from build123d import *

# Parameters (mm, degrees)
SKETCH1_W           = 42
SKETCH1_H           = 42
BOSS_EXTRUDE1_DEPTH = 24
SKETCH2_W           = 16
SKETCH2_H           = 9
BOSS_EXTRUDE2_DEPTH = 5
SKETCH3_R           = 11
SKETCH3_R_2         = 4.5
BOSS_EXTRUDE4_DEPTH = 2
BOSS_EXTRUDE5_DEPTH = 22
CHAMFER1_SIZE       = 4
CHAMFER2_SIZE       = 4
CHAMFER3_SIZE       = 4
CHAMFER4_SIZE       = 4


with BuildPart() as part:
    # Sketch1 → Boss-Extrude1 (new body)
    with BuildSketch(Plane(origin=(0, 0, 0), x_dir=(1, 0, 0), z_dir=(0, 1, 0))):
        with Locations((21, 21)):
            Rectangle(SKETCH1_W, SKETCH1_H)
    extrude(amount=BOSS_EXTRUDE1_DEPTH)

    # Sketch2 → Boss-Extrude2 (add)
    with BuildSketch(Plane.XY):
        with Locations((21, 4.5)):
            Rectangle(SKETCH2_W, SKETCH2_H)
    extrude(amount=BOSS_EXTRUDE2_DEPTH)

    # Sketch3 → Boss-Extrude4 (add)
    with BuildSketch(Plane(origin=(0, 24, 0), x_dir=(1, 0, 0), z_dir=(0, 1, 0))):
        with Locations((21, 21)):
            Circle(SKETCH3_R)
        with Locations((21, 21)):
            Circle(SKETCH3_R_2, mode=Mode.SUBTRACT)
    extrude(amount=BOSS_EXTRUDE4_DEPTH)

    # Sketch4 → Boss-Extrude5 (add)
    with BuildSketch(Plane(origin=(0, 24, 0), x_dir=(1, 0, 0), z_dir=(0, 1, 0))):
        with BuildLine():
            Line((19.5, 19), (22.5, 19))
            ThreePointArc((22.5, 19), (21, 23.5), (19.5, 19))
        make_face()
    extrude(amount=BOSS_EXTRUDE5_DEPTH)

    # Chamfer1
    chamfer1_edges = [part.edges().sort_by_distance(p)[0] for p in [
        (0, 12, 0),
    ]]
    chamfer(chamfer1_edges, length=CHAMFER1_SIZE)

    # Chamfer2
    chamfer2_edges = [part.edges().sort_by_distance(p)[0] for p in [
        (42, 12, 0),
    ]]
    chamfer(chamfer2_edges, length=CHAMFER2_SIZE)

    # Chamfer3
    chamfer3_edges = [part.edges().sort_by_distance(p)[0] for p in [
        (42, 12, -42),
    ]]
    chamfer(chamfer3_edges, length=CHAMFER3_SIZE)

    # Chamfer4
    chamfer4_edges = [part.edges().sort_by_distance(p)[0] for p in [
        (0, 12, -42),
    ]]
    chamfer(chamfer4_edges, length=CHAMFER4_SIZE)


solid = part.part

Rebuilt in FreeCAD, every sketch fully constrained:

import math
import FreeCAD as App
import Part
import Sketcher
from FreeCAD import Vector
Q = App.Units.Quantity


def edges_at(feature, points):
    """Names of the edges that pass closest to the given points."""
    edges = feature.Shape.Edges
    near = lambda p: min(range(len(edges)), key=lambda i: edges[i].distToShape(Part.Vertex(*p))[0])
    return sorted({f"Edge{near(p) + 1}" for p in points})

doc = App.newDocument("Part")
params = doc.addObject("Spreadsheet::Sheet", "Params")
for row, (alias, value) in enumerate([
    ("sketch1_width", "42 mm"),
    ("pad1_length", "24 mm"),
    ("sketch2_width", "16 mm"),
    ("sketch2_height", "9 mm"),
    ("pad2_length", "5 mm"),
    ("sketch3_diameter", "22 mm"),
    ("sketch3_diameter2", "9 mm"),
    ("pad3_length", "2 mm"),
    ("sketch4_radius", "2.5 mm"),
    ("sketch4_width", "3 mm"),
    ("pad4_length", "22 mm"),
    ("chamfer_size", "4 mm"),
    ("chamfer2_size", "4 mm"),
    ("chamfer3_size", "4 mm"),
    ("chamfer4_size", "4 mm"),
], start=1):
    params.set(f"A{row}", alias)
    params.set(f"B{row}", "=" + value)
    params.setAlias(f"B{row}", alias)

body = doc.addObject("PartDesign::Body", "Body")

# Sketch on XZ plane
sketch1 = body.newObject("Sketcher::SketchObject", "Sketch")
sketch1.AttachmentSupport = (doc.getObject("XZ_Plane"), [""])
sketch1.MapMode = "FlatFace"
sketch1.addGeometry([
    Part.LineSegment(Vector(0, -42, 0), Vector(0, 0, 0)),
    Part.LineSegment(Vector(0, 0, 0), Vector(42, 0, 0)),
    Part.LineSegment(Vector(42, 0, 0), Vector(42, -42, 0)),
    Part.LineSegment(Vector(42, -42, 0), Vector(0, -42, 0)),
], False)
sketch1.addConstraint([
    Sketcher.Constraint("Coincident", 0, 2, 1, 1),
    Sketcher.Constraint("Coincident", 1, 2, 2, 1),
    Sketcher.Constraint("Coincident", 2, 2, 3, 1),
    Sketcher.Constraint("Coincident", 3, 2, 0, 1),
    Sketcher.Constraint("Vertical", 0),
    Sketcher.Constraint("Horizontal", 1),
    Sketcher.Constraint("Vertical", 2),
    Sketcher.Constraint("Horizontal", 3),
    Sketcher.Constraint("Coincident", 0, 2, -1, 1),
    Sketcher.Constraint("Equal", 3, 0),
    Sketcher.Constraint("DistanceX", 1, 1, 1, 2, Q("42 mm")),
])
sketch1.setExpression("Constraints[10]", "Params.sketch1_width")
pad1 = body.newObject("PartDesign::Pad", "Pad")
pad1.Profile = sketch1
pad1.setExpression("Length", "Params.pad1_length")
pad1.Reversed = True

# Sketch on XY plane
sketch2 = body.newObject("Sketcher::SketchObject", "Sketch001")
sketch2.AttachmentSupport = (doc.getObject("XY_Plane"), [""])
sketch2.MapMode = "FlatFace"
sketch2.addGeometry([
    Part.LineSegment(Vector(13, 9, 0), Vector(13, 0, 0)),
    Part.LineSegment(Vector(13, 0, 0), Vector(29, 0, 0)),
    Part.LineSegment(Vector(29, 0, 0), Vector(29, 9, 0)),
    Part.LineSegment(Vector(29, 9, 0), Vector(13, 9, 0)),
], False)
sketch2.addConstraint([
    Sketcher.Constraint("Coincident", 0, 2, 1, 1),
    Sketcher.Constraint("Coincident", 1, 2, 2, 1),
    Sketcher.Constraint("Coincident", 2, 2, 3, 1),
    Sketcher.Constraint("Coincident", 3, 2, 0, 1),
    Sketcher.Constraint("Vertical", 0),
    Sketcher.Constraint("Horizontal", 1),
    Sketcher.Constraint("Vertical", 2),
    Sketcher.Constraint("Horizontal", 3),
    Sketcher.Constraint("PointOnObject", 0, 2, -1),
    Sketcher.Constraint("DistanceX", 1, 1, 1, 2, Q("16 mm")),
    Sketcher.Constraint("DistanceY", 0, 2, 0, 1, Q("9 mm")),
    Sketcher.Constraint("DistanceX", -1, 1, 0, 2, Q("13 mm")),
])
sketch2.setExpression("Constraints[9]", "Params.sketch2_width")
sketch2.setExpression("Constraints[10]", "Params.sketch2_height")
pad2 = body.newObject("PartDesign::Pad", "Pad001")
pad2.Profile = sketch2
pad2.setExpression("Length", "Params.pad2_length")

# Sketch on XZ plane
sketch3 = body.newObject("Sketcher::SketchObject", "Sketch002")
sketch3.AttachmentSupport = (doc.getObject("XZ_Plane"), [""])
sketch3.MapMode = "FlatFace"
sketch3.AttachmentOffset = App.Placement(Vector(0, 0, -24), App.Rotation())
sketch3.addGeometry([
    Part.Circle(Vector(21, -21, 0), Vector(0, 0, 1), 11),
    Part.Circle(Vector(21, -21, 0), Vector(0, 0, 1), 4.5),
], False)
sketch3.addConstraint([
    Sketcher.Constraint("Coincident", 1, 3, 0, 3),
    Sketcher.Constraint("Diameter", 0, Q("22 mm")),
    Sketcher.Constraint("Diameter", 1, Q("9 mm")),
    Sketcher.Constraint("DistanceX", -1, 1, 0, 3, Q("21 mm")),
    Sketcher.Constraint("DistanceY", 0, 3, -1, 1, Q("21 mm")),
])
sketch3.setExpression("Constraints[1]", "Params.sketch3_diameter")
sketch3.setExpression("Constraints[2]", "Params.sketch3_diameter2")
pad3 = body.newObject("PartDesign::Pad", "Pad002")
pad3.Profile = sketch3
pad3.setExpression("Length", "Params.pad3_length")
pad3.Reversed = True

# Sketch on XZ plane
sketch4 = body.newObject("Sketcher::SketchObject", "Sketch003")
sketch4.AttachmentSupport = (doc.getObject("XZ_Plane"), [""])
sketch4.MapMode = "FlatFace"
sketch4.AttachmentOffset = App.Placement(Vector(0, 0, -24), App.Rotation())
sketch4.addGeometry([
    Part.LineSegment(Vector(19.5, -19, 0), Vector(22.5, -19, 0)),
    Part.ArcOfCircle(Part.Circle(Vector(21, -21, 0), Vector(0, 0, 1), 2.5), math.radians(127), math.radians(413)),
], False)
sketch4.addConstraint([
    Sketcher.Constraint("Coincident", 0, 1, 1, 1),
    Sketcher.Constraint("Coincident", 1, 2, 0, 2),
    Sketcher.Constraint("Horizontal", 0),
    Sketcher.Constraint("Radius", 1, Q("2.5 mm")),
    Sketcher.Constraint("DistanceX", 0, 1, 0, 2, Q("3 mm")),
    Sketcher.Constraint("DistanceX", -1, 1, 1, 3, Q("21 mm")),
    Sketcher.Constraint("DistanceY", 1, 3, -1, 1, Q("21 mm")),
])
sketch4.setExpression("Constraints[3]", "Params.sketch4_radius")
sketch4.setExpression("Constraints[4]", "Params.sketch4_width")
pad4 = body.newObject("PartDesign::Pad", "Pad003")
pad4.Profile = sketch4
pad4.setExpression("Length", "Params.pad4_length")
pad4.Reversed = True
doc.recompute()

chamfer = body.newObject("PartDesign::Chamfer", "Chamfer")
chamfer.Base = (pad4, edges_at(pad4, [(0, 12, 0)]))
chamfer.setExpression("Size", "Params.chamfer_size")
doc.recompute()

chamfer2 = body.newObject("PartDesign::Chamfer", "Chamfer001")
chamfer2.Base = (chamfer, edges_at(chamfer, [(42, 12, 0)]))
chamfer2.setExpression("Size", "Params.chamfer2_size")
doc.recompute()

chamfer3 = body.newObject("PartDesign::Chamfer", "Chamfer002")
chamfer3.Base = (chamfer2, edges_at(chamfer2, [(42, 12, -42)]))
chamfer3.setExpression("Size", "Params.chamfer3_size")
doc.recompute()

chamfer4 = body.newObject("PartDesign::Chamfer", "Chamfer003")
chamfer4.Base = (chamfer3, edges_at(chamfer3, [(0, 12, -42)]))
chamfer4.setExpression("Size", "Params.chamfer4_size")

doc.recompute()
